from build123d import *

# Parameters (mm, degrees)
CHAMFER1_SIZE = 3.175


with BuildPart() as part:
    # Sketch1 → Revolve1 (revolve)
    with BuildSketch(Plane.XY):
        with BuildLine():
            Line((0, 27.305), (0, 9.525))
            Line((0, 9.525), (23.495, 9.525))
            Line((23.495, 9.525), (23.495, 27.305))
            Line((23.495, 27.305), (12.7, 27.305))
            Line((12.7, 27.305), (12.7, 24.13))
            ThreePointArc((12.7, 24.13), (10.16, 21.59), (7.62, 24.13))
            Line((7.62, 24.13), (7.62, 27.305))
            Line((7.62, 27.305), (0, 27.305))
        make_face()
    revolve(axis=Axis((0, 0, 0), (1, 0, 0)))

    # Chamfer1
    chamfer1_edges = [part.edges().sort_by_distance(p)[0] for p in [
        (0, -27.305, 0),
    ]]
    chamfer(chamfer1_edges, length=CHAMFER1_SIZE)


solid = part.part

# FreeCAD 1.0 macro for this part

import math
import FreeCAD as App
import Part
import Sketcher
from FreeCAD import Vector
Q = App.Units.Quantity


def edges_at(feature, points):
    """Names of the edges that pass closest to the given points."""
    edges = feature.Shape.Edges
    near = lambda p: min(range(len(edges)), key=lambda i: edges[i].distToShape(Part.Vertex(*p))[0])
    return sorted({f"Edge{near(p) + 1}" for p in points})

doc = App.newDocument("Part")
body = doc.addObject("PartDesign::Body", "Body")

sketch1 = body.newObject("Sketcher::SketchObject", "Sketch")
sketch1.AttachmentSupport = (doc.getObject("XY_Plane"), [""])
sketch1.MapMode = "FlatFace"
sketch1.addGeometry(Part.LineSegment(Vector(0, 27.3, 0), Vector(0, 9.5, 0)), False)
sketch1.addGeometry(Part.LineSegment(Vector(0, 9.5, 0), Vector(23.5, 9.5, 0)), False)
sketch1.addGeometry(Part.LineSegment(Vector(23.5, 9.5, 0), Vector(23.5, 27.3, 0)), False)
sketch1.addGeometry(Part.LineSegment(Vector(23.5, 27.3, 0), Vector(12.7, 27.3, 0)), False)
sketch1.addGeometry(Part.LineSegment(Vector(12.7, 27.3, 0), Vector(12.7, 24.1, 0)), False)
sketch1.addGeometry(Part.ArcOfCircle(Part.Circle(Vector(10.2, 24.1, 0), Vector(0, 0, 1), 2.5), math.radians(180), math.radians(360)), False)
sketch1.addGeometry(Part.LineSegment(Vector(7.6, 24.1, 0), Vector(7.6, 27.3, 0)), False)
sketch1.addGeometry(Part.LineSegment(Vector(7.6, 27.3, 0), Vector(0, 27.3, 0)), False)
sketch1.addConstraint(Sketcher.Constraint("Coincident", 0, 2, 1, 1))
sketch1.addConstraint(Sketcher.Constraint("Coincident", 1, 2, 2, 1))
sketch1.addConstraint(Sketcher.Constraint("Coincident", 2, 2, 3, 1))
sketch1.addConstraint(Sketcher.Constraint("Coincident", 3, 2, 4, 1))
sketch1.addConstraint(Sketcher.Constraint("Tangent", 4, 2, 5, 2))
sketch1.addConstraint(Sketcher.Constraint("Tangent", 5, 1, 6, 1))
sketch1.addConstraint(Sketcher.Constraint("Coincident", 6, 2, 7, 1))
sketch1.addConstraint(Sketcher.Constraint("Coincident", 7, 2, 0, 1))
sketch1.addConstraint(Sketcher.Constraint("Vertical", 0))
sketch1.addConstraint(Sketcher.Constraint("Horizontal", 1))
sketch1.addConstraint(Sketcher.Constraint("Vertical", 2))
sketch1.addConstraint(Sketcher.Constraint("Horizontal", 3))
sketch1.addConstraint(Sketcher.Constraint("Vertical", 4))
sketch1.addConstraint(Sketcher.Constraint("Vertical", 6))
sketch1.addConstraint(Sketcher.Constraint("Horizontal", 7))
sketch1.addConstraint(Sketcher.Constraint("PointOnObject", 0, 2, -2))
sketch1.addConstraint(Sketcher.Constraint("Horizontal", 3, 2, 6, 2))
sketch1.addConstraint(Sketcher.Constraint("Radius", 5, Q("0.1 in")))
sketch1.addConstraint(Sketcher.Constraint("DistanceX", 7, 2, 7, 1, Q("0.3 in")))
sketch1.addConstraint(Sketcher.Constraint("DistanceY", 0, 2, 0, 1, Q("0.7 in")))
sketch1.addConstraint(Sketcher.Constraint("DistanceX", 1, 1, 1, 2, Q("0.925 in")))
sketch1.addConstraint(Sketcher.Constraint("DistanceY", 4, 2, 4, 1, Q("0.125 in")))
sketch1.addConstraint(Sketcher.Constraint("DistanceY", -1, 1, 5, 3, Q("0.95 in")))
revolution = body.newObject("PartDesign::Revolution", "Revolution")
revolution.Profile = sketch1
revolution.ReferenceAxis = (sketch1, ["H_Axis"])
revolution.Angle = 360
doc.recompute()

chamfer = body.newObject("PartDesign::Chamfer", "Chamfer")
chamfer.Base = (revolution, edges_at(revolution, [(0, -27.305, 0)]))
chamfer.Size = Q("0.125 in")

doc.recompute()
